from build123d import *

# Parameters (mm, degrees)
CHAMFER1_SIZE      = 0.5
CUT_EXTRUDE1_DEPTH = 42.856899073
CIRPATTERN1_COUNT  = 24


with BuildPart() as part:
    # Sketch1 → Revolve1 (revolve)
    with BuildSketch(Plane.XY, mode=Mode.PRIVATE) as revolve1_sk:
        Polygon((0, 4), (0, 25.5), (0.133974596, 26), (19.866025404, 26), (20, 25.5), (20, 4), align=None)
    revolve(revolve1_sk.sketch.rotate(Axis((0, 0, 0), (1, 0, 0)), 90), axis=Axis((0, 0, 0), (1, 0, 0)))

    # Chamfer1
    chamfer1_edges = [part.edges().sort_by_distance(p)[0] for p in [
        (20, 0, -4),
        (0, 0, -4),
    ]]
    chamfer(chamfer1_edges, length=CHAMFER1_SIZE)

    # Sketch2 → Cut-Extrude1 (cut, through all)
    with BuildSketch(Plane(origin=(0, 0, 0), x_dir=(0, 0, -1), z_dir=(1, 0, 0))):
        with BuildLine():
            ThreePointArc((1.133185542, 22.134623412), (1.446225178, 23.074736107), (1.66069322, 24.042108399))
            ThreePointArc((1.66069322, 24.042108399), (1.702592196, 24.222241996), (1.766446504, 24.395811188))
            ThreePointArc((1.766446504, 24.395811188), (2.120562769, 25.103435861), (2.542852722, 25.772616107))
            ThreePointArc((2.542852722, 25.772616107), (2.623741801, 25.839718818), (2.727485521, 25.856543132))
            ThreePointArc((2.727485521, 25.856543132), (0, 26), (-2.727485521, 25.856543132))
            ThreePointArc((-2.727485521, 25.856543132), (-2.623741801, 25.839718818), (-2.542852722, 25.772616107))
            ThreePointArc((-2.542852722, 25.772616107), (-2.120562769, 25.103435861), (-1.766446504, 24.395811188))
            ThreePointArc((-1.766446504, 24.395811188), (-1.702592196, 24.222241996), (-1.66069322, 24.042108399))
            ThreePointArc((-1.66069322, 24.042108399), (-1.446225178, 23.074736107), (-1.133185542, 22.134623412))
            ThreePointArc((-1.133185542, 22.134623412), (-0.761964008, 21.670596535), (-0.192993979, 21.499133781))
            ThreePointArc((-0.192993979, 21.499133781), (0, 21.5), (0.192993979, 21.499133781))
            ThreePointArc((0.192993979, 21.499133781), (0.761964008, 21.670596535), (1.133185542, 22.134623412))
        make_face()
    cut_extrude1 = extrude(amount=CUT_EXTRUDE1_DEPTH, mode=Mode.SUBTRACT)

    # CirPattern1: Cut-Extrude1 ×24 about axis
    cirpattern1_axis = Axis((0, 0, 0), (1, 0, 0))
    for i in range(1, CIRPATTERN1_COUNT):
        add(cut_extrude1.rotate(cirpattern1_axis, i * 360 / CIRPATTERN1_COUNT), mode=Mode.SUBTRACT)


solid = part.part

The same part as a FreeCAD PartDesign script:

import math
import FreeCAD as App
import Part
import Sketcher

V = App.Vector
Q = App.Units.Quantity


def edges_at(feature, points):
    """Names of the edges that pass closest to the given points."""
    edges = feature.Shape.Edges
    near = lambda p: min(range(len(edges)), key=lambda i: edges[i].distToShape(Part.Vertex(*p))[0])
    return sorted({f"Edge{near(p) + 1}" for p in points})


def add_polygon(sketch, points):
    """Adds a closed chain of lines whose ends are joined by coincident constraints."""
    first, n = sketch.GeometryCount, len(points)
    for a, b in zip(points, points[1:] + points[:1]):
        sketch.addGeometry(Part.LineSegment(App.Vector(*a, 0), App.Vector(*b, 0)), False)
    for i in range(n):
        sketch.addConstraint(Sketcher.Constraint("Coincident", first + i, 2, first + (i + 1) % n, 1))

doc = App.newDocument("Part")
body = doc.addObject("PartDesign::Body", "Body")

# Sketch on XY plane
sketch1 = body.newObject("Sketcher::SketchObject", "Sketch")
sketch1.AttachmentSupport = (doc.getObject("XY_Plane"), [""])
sketch1.MapMode = "FlatFace"
add_polygon(sketch1, [(0, 25.5), (0, 4), (20, 4), (20, 25.5), (19.866025, 26), (0.133975, 26)])  # lines 0-5
sketch1.addConstraint([
    Sketcher.Constraint("Vertical", 0),
    Sketcher.Constraint("Horizontal", 1),
    Sketcher.Constraint("Vertical", 2),
    Sketcher.Constraint("Horizontal", 4),
    Sketcher.Constraint("PointOnObject", 0, 2, -2),
    Sketcher.Constraint("Horizontal", 2, 2, 5, 2),
    Sketcher.Constraint("Equal", 3, 5),
    Sketcher.Constraint("DistanceX", 1, 1, 1, 2, Q("20 mm")),
    Sketcher.Constraint("Angle", 3, Q("105 deg")),
    Sketcher.Constraint("DistanceY", 0, 2, 0, 1, Q("21.5 mm")),
    Sketcher.Constraint("DistanceY", -1, 1, 0, 2, Q("4 mm")),
    Sketcher.Constraint("DistanceY", -1, 1, 3, 2, Q("26 mm")),
])
revolution = body.newObject("PartDesign::Revolution", "Revolution")
revolution.Profile = sketch1
revolution.ReferenceAxis = (sketch1, ["H_Axis"])
revolution.Angle = 360
doc.recompute()

chamfer = body.newObject("PartDesign::Chamfer", "Chamfer")
chamfer.Base = (revolution, edges_at(revolution, [(20, 0, -4), (0, 0, -4)]))
chamfer.Size = 0.5

# Sketch on YZ plane
sketch2 = body.newObject("Sketcher::SketchObject", "Sketch001")
sketch2.AttachmentSupport = (doc.getObject("YZ_Plane"), [""])
sketch2.MapMode = "FlatFace"
sketch2.addGeometry([
    Part.ArcOfCircle(Part.Circle(V(25.633536, 7.806479, 0), V(0, 0, 1), 9.6), math.radians(-111.374974), math.radians(-99.542185)),  # 0
    Part.ArcOfCircle(Part.Circle(V(23.794677, -3.132629, 0), V(0, 0, 1), 1.492587), math.radians(66.25), math.radians(80.457815)),  # 1
    Part.ArcOfCircle(Part.Circle(V(21.173838, -9.088938, 0), V(0, 0, 1), 8), math.radians(54.91106), math.radians(66.25)),  # 2
    Part.ArcOfCircle(Part.Circle(V(25.657647, -2.706505, 0), V(0, 0, 1), 0.2), math.radians(-6.021595), math.radians(54.911061)),  # 3
    Part.ArcOfCircle(Part.Circle(V(0, 0, 0), V(0, 0, 1), 26), math.radians(-6.021595), math.radians(6.021595)),  # 4
    Part.ArcOfCircle(Part.Circle(V(25.657647, 2.706505, 0), V(0, 0, 1), 0.2), math.radians(-54.911061), math.radians(6.021595)),  # 5
    Part.ArcOfCircle(Part.Circle(V(21.173838, 9.088938, 0), V(0, 0, 1), 8), math.radians(-66.25), math.radians(-54.91106)),  # 6
    Part.ArcOfCircle(Part.Circle(V(23.794677, 3.132629, 0), V(0, 0, 1), 1.492587), math.radians(-80.457815), math.radians(-66.25)),  # 7
    Part.ArcOfCircle(Part.Circle(V(25.633536, -7.806479, 0), V(0, 0, 1), 9.6), math.radians(99.542185), math.radians(111.374974)),  # 8
    Part.ArcOfCircle(Part.Circle(V(22.499093, 0.20197, 0), V(0, 0, 1), 1), math.radians(111.374974), math.radians(180.51432)),  # 9
    Part.ArcOfCircle(Part.Circle(V(-0.000005, 0, 0), V(0, 0, 1), 21.500005), math.radians(-0.51432), math.radians(0.51432)),  # 10
    Part.ArcOfCircle(Part.Circle(V(22.499093, -0.20197, 0), V(0, 0, 1), 1), math.radians(179.48568), math.radians(248.625026)),  # 11
], False)
sketch2.addConstraint([
    Sketcher.Constraint("Tangent", 0, 2, 1, 2),
    Sketcher.Constraint("Tangent", 1, 1, 2, 2),
    Sketcher.Constraint("Tangent", 2, 1, 3, 2),
    Sketcher.Constraint("Tangent", 3, 1, 4, 1),
    Sketcher.Constraint("Tangent", 4, 2, 5, 2),
    Sketcher.Constraint("Tangent", 5, 1, 6, 2),
    Sketcher.Constraint("Tangent", 6, 1, 7, 2),
    Sketcher.Constraint("Tangent", 7, 1, 8, 1),
    Sketcher.Constraint("Tangent", 8, 2, 9, 1),
    Sketcher.Constraint("Tangent", 9, 2, 10, 2),
    Sketcher.Constraint("Tangent", 10, 1, 11, 1),
    Sketcher.Constraint("Tangent", 11, 2, 0, 1),
    Sketcher.Constraint("Coincident", 4, 3, -1, 1),
    Sketcher.Constraint("Coincident", 10, 3, -1, 1),
    Sketcher.Constraint("Equal", 3, 5),
    Sketcher.Constraint("Equal", 2, 6),
    Sketcher.Constraint("Equal", 1, 7),
    Sketcher.Constraint("Equal", 0, 8),
    Sketcher.Constraint("Equal", 9, 11),
    Sketcher.Constraint("Symmetric", 2, 3, 6, 3, -1),
    Sketcher.Constraint("Symmetric", 0, 3, 8, 3, -1),
    Sketcher.Constraint("Radius", 2, Q("8 mm")),
    Sketcher.Constraint("Radius", 4, Q("26 mm")),
    Sketcher.Constraint("Radius", 9, Q("1 mm")),
    Sketcher.Constraint("Radius", 0, Q("9.6 mm")),
    Sketcher.Constraint("Radius", 3, Q("0.2 mm")),
    Sketcher.Constraint("Radius", 1, Q("1.492587 mm")),
    Sketcher.Constraint("Radius", 10, Q("21.500005 mm")),
    Sketcher.Constraint("DistanceX", 2, 3, 0, 3, Q("4.459698 mm")),
    Sketcher.Constraint("DistanceY", 1, 3, 9, 3, Q("3.334599 mm")),
    Sketcher.Constraint("DistanceY", 0, 2, 5, 3, Q("4.367198 mm")),
    Sketcher.Constraint("DistanceY", 9, 2, 7, 1, Q("1.467699 mm")),
])
pocket1 = body.newObject("PartDesign::Pocket", "Pocket")
pocket1.Profile = sketch2
pocket1.Type = "ThroughAll"
pocket1.Reversed = True
doc.recompute()

polarpattern = body.newObject("PartDesign::PolarPattern", "PolarPattern")
polarpattern.Originals = [pocket1]
polarpattern.Axis = (doc.getObject("X_Axis"), [""])
polarpattern.Angle = 360
polarpattern.Occurrences = 24
body.Tip = polarpattern

doc.recompute()
